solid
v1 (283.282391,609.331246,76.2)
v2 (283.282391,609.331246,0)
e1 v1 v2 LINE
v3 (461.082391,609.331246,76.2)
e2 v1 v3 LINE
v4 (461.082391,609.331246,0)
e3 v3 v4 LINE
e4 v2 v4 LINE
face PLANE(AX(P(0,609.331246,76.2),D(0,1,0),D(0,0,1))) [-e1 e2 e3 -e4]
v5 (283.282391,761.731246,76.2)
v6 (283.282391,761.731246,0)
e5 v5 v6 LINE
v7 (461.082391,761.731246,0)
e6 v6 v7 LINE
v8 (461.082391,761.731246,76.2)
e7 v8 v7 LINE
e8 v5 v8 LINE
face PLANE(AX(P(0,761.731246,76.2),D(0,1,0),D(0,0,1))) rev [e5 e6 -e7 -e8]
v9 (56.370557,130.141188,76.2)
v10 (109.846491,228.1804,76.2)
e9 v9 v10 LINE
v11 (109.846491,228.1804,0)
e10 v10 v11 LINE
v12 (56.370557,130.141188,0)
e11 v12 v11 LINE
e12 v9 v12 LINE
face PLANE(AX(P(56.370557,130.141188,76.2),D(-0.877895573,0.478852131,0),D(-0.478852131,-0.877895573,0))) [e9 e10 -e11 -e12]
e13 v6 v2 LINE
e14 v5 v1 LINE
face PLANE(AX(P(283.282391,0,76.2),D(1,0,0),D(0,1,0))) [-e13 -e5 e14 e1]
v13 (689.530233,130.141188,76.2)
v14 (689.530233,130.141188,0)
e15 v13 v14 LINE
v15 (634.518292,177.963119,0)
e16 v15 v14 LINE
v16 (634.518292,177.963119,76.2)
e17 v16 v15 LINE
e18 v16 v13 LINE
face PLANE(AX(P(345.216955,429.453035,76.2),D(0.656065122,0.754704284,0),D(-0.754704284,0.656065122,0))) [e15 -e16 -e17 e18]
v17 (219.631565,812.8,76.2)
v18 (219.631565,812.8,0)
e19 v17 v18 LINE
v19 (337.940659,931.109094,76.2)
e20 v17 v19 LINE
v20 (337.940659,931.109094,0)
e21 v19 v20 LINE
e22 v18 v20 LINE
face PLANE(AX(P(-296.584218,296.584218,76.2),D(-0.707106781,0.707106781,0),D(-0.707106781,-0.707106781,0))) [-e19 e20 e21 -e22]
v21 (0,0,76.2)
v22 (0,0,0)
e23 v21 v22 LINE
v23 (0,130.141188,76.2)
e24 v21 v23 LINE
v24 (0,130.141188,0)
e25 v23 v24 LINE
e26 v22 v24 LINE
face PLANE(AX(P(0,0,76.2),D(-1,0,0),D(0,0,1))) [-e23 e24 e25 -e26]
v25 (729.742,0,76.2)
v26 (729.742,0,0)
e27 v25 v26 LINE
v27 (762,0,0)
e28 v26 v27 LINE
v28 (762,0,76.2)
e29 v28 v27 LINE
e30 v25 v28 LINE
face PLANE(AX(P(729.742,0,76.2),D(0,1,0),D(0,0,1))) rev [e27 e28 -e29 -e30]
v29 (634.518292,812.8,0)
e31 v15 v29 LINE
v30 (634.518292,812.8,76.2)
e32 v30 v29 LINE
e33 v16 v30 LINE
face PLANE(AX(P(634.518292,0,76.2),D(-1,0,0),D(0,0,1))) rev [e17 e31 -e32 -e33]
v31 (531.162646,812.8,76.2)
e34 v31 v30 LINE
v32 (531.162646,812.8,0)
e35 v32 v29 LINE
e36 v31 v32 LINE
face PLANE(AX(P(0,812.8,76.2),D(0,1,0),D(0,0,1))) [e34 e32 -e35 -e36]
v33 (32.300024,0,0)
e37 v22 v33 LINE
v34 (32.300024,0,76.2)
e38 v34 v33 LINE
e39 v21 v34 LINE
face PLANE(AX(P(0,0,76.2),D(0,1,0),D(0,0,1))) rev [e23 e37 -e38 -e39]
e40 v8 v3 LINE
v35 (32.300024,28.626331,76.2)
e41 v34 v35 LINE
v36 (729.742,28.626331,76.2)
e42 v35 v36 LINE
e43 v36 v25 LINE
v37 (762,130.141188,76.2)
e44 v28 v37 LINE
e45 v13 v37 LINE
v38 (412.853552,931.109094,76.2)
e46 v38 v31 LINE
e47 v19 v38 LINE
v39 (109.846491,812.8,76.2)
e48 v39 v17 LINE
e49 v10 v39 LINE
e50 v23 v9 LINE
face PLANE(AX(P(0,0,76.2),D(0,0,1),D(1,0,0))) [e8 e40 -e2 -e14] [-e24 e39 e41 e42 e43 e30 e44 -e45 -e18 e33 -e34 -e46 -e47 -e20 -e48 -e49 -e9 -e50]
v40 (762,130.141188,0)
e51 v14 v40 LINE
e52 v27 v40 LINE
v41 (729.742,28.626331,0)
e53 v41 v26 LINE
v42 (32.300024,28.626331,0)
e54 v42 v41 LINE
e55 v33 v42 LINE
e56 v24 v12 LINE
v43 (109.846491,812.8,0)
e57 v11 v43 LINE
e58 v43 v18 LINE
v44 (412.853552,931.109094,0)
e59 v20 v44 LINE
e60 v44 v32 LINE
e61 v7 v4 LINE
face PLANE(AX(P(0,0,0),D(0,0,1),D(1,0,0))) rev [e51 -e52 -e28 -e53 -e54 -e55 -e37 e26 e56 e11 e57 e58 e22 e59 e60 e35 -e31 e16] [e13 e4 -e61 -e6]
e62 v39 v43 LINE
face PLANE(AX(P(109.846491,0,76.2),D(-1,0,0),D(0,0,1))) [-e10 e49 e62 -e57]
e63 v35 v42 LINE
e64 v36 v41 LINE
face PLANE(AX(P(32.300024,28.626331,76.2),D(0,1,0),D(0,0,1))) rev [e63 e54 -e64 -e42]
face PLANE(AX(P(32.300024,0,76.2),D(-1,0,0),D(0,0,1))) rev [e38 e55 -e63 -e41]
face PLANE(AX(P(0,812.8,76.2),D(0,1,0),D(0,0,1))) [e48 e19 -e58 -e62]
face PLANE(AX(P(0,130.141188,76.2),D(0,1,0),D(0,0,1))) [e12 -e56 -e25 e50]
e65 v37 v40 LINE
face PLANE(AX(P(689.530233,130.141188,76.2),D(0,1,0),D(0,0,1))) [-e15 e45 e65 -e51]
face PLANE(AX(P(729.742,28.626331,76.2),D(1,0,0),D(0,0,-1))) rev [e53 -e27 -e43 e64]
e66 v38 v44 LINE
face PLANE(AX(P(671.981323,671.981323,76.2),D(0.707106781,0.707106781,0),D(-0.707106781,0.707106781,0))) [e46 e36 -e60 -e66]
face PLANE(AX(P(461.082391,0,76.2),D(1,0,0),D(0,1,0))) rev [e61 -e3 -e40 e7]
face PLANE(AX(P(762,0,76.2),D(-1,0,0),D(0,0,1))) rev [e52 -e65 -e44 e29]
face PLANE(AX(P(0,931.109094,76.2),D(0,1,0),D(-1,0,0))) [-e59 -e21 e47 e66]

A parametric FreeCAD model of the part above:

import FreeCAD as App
import Part
import Sketcher
from FreeCAD import Vector
Q = App.Units.Quantity

doc = App.newDocument("Part")
body = doc.addObject("PartDesign::Body", "Body")

# Sketch on XY plane
sketch1 = doc.addObject("Sketcher::SketchObject", "Sketch")
body.addObject(sketch1)
sketch1.AttachmentSupport = (doc.XY_Plane, [""])
sketch1.MapMode = "FlatFace"
sketch1.addGeometry(Part.LineSegment(Vector(0, 0, 0), Vector(32, 0, 0)), False)
sketch1.addGeometry(Part.LineSegment(Vector(32, 0, 0), Vector(32, 29, 0)), False)
sketch1.addGeometry(Part.LineSegment(Vector(32, 29, 0), Vector(730, 29, 0)), False)
sketch1.addGeometry(Part.LineSegment(Vector(730, 29, 0), Vector(730, 0, 0)), False)
sketch1.addGeometry(Part.LineSegment(Vector(730, 0, 0), Vector(762, 0, 0)), False)
sketch1.addGeometry(Part.LineSegment(Vector(762, 0, 0), Vector(762, 130, 0)), False)
sketch1.addGeometry(Part.LineSegment(Vector(762, 130, 0), Vector(690, 130, 0)), False)
sketch1.addGeometry(Part.LineSegment(Vector(690, 130, 0), Vector(635, 178, 0)), False)
sketch1.addGeometry(Part.LineSegment(Vector(635, 178, 0), Vector(635, 813, 0)), False)
sketch1.addGeometry(Part.LineSegment(Vector(635, 813, 0), Vector(531, 813, 0)), False)
sketch1.addGeometry(Part.LineSegment(Vector(531, 813, 0), Vector(413, 931, 0)), False)
sketch1.addGeometry(Part.LineSegment(Vector(413, 931, 0), Vector(338, 931, 0)), False)
sketch1.addGeometry(Part.LineSegment(Vector(338, 931, 0), Vector(220, 813, 0)), False)
sketch1.addGeometry(Part.LineSegment(Vector(220, 813, 0), Vector(110, 813, 0)), False)
sketch1.addGeometry(Part.LineSegment(Vector(110, 813, 0), Vector(110, 228, 0)), False)
sketch1.addGeometry(Part.LineSegment(Vector(110, 228, 0), Vector(56, 130, 0)), False)
sketch1.addGeometry(Part.LineSegment(Vector(56, 130, 0), Vector(0, 130, 0)), False)
sketch1.addGeometry(Part.LineSegment(Vector(0, 130, 0), Vector(0, 0, 0)), False)
sketch1.addGeometry(Part.LineSegment(Vector(461, 609, 0), Vector(283, 609, 0)), False)
sketch1.addGeometry(Part.LineSegment(Vector(283, 609, 0), Vector(283, 762, 0)), False)
sketch1.addGeometry(Part.LineSegment(Vector(283, 762, 0), Vector(461, 762, 0)), False)
sketch1.addGeometry(Part.LineSegment(Vector(461, 762, 0), Vector(461, 609, 0)), False)
sketch1.addConstraint(Sketcher.Constraint("Coincident", 0, 2, 1, 1))
sketch1.addConstraint(Sketcher.Constraint("Coincident", 1, 2, 2, 1))
sketch1.addConstraint(Sketcher.Constraint("Coincident", 2, 2, 3, 1))
sketch1.addConstraint(Sketcher.Constraint("Coincident", 3, 2, 4, 1))
sketch1.addConstraint(Sketcher.Constraint("Coincident", 4, 2, 5, 1))
sketch1.addConstraint(Sketcher.Constraint("Coincident", 5, 2, 6, 1))
sketch1.addConstraint(Sketcher.Constraint("Coincident", 6, 2, 7, 1))
sketch1.addConstraint(Sketcher.Constraint("Coincident", 7, 2, 8, 1))
sketch1.addConstraint(Sketcher.Constraint("Coincident", 8, 2, 9, 1))
sketch1.addConstraint(Sketcher.Constraint("Coincident", 9, 2, 10, 1))
sketch1.addConstraint(Sketcher.Constraint("Coincident", 10, 2, 11, 1))
sketch1.addConstraint(Sketcher.Constraint("Coincident", 11, 2, 12, 1))
sketch1.addConstraint(Sketcher.Constraint("Coincident", 12, 2, 13, 1))
sketch1.addConstraint(Sketcher.Constraint("Coincident", 13, 2, 14, 1))
sketch1.addConstraint(Sketcher.Constraint("Coincident", 14, 2, 15, 1))
sketch1.addConstraint(Sketcher.Constraint("Coincident", 15, 2, 16, 1))
sketch1.addConstraint(Sketcher.Constraint("Coincident", 16, 2, 17, 1))
sketch1.addConstraint(Sketcher.Constraint("Coincident", 17, 2, 0, 1))
sketch1.addConstraint(Sketcher.Constraint("Coincident", 18, 2, 19, 1))
sketch1.addConstraint(Sketcher.Constraint("Coincident", 19, 2, 20, 1))
sketch1.addConstraint(Sketcher.Constraint("Coincident", 20, 2, 21, 1))
sketch1.addConstraint(Sketcher.Constraint("Coincident", 21, 2, 18, 1))
sketch1.addConstraint(Sketcher.Constraint("Horizontal", 0))
sketch1.addConstraint(Sketcher.Constraint("Vertical", 1))
sketch1.addConstraint(Sketcher.Constraint("Horizontal", 2))
sketch1.addConstraint(Sketcher.Constraint("Vertical", 3))
sketch1.addConstraint(Sketcher.Constraint("Horizontal", 4))
sketch1.addConstraint(Sketcher.Constraint("Vertical", 5))
sketch1.addConstraint(Sketcher.Constraint("Horizontal", 6))
sketch1.addConstraint(Sketcher.Constraint("Vertical", 8))
sketch1.addConstraint(Sketcher.Constraint("Horizontal", 9))
sketch1.addConstraint(Sketcher.Constraint("Horizontal", 11))
sketch1.addConstraint(Sketcher.Constraint("Horizontal", 13))
sketch1.addConstraint(Sketcher.Constraint("Vertical", 14))
sketch1.addConstraint(Sketcher.Constraint("Horizontal", 16))
sketch1.addConstraint(Sketcher.Constraint("Vertical", 17))
sketch1.addConstraint(Sketcher.Constraint("Horizontal", 18))
sketch1.addConstraint(Sketcher.Constraint("Vertical", 19))
sketch1.addConstraint(Sketcher.Constraint("Horizontal", 20))
sketch1.addConstraint(Sketcher.Constraint("Vertical", 21))
sketch1.addConstraint(Sketcher.Constraint("Coincident", 17, 2, -1, 1))
sketch1.addConstraint(Sketcher.Constraint("PointOnObject", 3, 2, -1))
sketch1.addConstraint(Sketcher.Constraint("Perpendicular", 10, 12))
sketch1.addConstraint(Sketcher.Constraint("Horizontal", 9, 2, 12, 2))
sketch1.addConstraint(Sketcher.Constraint("Horizontal", 6, 2, 15, 2))
sketch1.addConstraint(Sketcher.Constraint("Equal", 10, 12))
sketch1.addConstraint(Sketcher.Constraint("DistanceX", 18, 2, 18, 1, Q("7 in")))
sketch1.addConstraint(Sketcher.Constraint("DistanceY", 19, 1, 19, 2, Q("6 in")))
sketch1.addConstraint(Sketcher.Constraint("DistanceX", -1, 1, 4, 2, Q("30 in")))
sketch1.addConstraint(Sketcher.Constraint("DistanceY", -1, 1, 8, 2, Q("32 in")))
sketch1.addConstraint(Sketcher.Constraint("DistanceX", 4, 1, 4, 2, Q("1.27 in")))
sketch1.addConstraint(Sketcher.Constraint("DistanceY", 14, 2, 14, 1, 584.6196))
sketch1.addConstraint(Sketcher.Constraint("DistanceY", 1, 1, 1, 2, 28.626331))
sketch1.addConstraint(Sketcher.Constraint("DistanceY", 5, 1, 5, 2, 130.141188))
sketch1.addConstraint(Sketcher.Constraint("DistanceY", 8, 1, 8, 2, 634.836881))
sketch1.addConstraint(Sketcher.Constraint("DistanceX", 13, 2, 8, 2, 524.6718))
sketch1.addConstraint(Sketcher.Constraint("DistanceX", 13, 2, 18, 2, 173.4359))
sketch1.addConstraint(Sketcher.Constraint("Distance", 7, 72.892049))
sketch1.addConstraint(Sketcher.Constraint("DistanceX", 0, 1, 0, 2, 32.300024))
sketch1.addConstraint(Sketcher.Constraint("DistanceX", 6, 2, 6, 1, 72.469767))
sketch1.addConstraint(Sketcher.Constraint("DistanceX", 9, 2, 9, 1, 103.355646))
sketch1.addConstraint(Sketcher.Constraint("DistanceX", 11, 2, 11, 1, 74.912893))
sketch1.addConstraint(Sketcher.Constraint("DistanceX", 13, 2, 13, 1, 109.785074))
sketch1.addConstraint(Sketcher.Constraint("DistanceX", 16, 2, 16, 1, 56.370557))
sketch1.addConstraint(Sketcher.Constraint("DistanceY", 18, 2, 11, 2, 321.777849))
pad1 = doc.addObject("PartDesign::Pad", "Pad")
body.addObject(pad1)
pad1.Profile = sketch1
pad1.Length = Q("3 in")

doc.recompute()
